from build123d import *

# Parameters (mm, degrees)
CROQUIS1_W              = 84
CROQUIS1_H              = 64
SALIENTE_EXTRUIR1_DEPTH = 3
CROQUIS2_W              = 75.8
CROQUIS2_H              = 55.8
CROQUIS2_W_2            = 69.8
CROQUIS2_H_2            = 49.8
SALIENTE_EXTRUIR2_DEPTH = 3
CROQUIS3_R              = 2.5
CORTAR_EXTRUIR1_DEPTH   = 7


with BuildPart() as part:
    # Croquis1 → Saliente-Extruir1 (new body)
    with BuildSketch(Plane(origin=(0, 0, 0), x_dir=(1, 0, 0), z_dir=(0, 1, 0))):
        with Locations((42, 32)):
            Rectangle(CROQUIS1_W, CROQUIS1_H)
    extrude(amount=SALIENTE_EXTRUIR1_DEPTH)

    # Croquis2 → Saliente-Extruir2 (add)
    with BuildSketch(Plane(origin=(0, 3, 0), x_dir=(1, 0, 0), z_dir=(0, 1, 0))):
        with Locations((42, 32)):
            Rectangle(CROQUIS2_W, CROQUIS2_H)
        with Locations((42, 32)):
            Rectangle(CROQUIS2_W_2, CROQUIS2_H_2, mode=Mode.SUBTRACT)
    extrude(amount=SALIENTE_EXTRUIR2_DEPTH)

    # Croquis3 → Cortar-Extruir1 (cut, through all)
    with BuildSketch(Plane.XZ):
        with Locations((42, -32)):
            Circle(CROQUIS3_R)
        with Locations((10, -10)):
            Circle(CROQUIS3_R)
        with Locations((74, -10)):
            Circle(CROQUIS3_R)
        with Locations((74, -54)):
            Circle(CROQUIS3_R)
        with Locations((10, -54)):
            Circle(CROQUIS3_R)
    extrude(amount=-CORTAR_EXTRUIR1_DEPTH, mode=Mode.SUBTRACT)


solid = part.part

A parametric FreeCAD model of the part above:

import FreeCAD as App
import Part
import Sketcher
Q = App.Units.Quantity


def add_polygon(sketch, points):
    """Adds a closed chain of lines whose ends are joined by coincident constraints."""
    first, n = sketch.GeometryCount, len(points)
    for a, b in zip(points, points[1:] + points[:1]):
        sketch.addGeometry(Part.LineSegment(App.Vector(*a, 0), App.Vector(*b, 0)), False)
    for i in range(n):
        sketch.addConstraint(Sketcher.Constraint("Coincident", first + i, 2, first + (i + 1) % n, 1))

doc = App.newDocument("Part")
body = doc.addObject("PartDesign::Body", "Body")

# Sketch on XZ plane
sketch1 = doc.addObject("Sketcher::SketchObject", "Sketch")
body.addObject(sketch1)
sketch1.AttachmentSupport = (doc.XZ_Plane, [""])
sketch1.MapMode = "FlatFace"
add_polygon(sketch1, [(0, -64), (0, 0), (84, 0), (84, -64)])  # lines 0-3
sketch1.addConstraint([
    Sketcher.Constraint("Vertical", 0),
    Sketcher.Constraint("Horizontal", 1),
    Sketcher.Constraint("Vertical", 2),
    Sketcher.Constraint("Horizontal", 3),
    Sketcher.Constraint("Coincident", 0, 2, -1, 1),
    Sketcher.Constraint("DistanceX", 1, 1, 1, 2, Q("84 mm")),
    Sketcher.Constraint("DistanceY", 0, 1, 0, 2, Q("64 mm")),
])
pad1 = doc.addObject("PartDesign::Pad", "Pad")
body.addObject(pad1)
pad1.Profile = sketch1
pad1.Length = 3
pad1.Reversed = True

# Sketch on XZ plane
sketch2 = doc.addObject("Sketcher::SketchObject", "Sketch001")
body.addObject(sketch2)
sketch2.AttachmentSupport = (doc.XZ_Plane, [""])
sketch2.MapMode = "FlatFace"
sketch2.AttachmentOffset = App.Placement(App.Vector(0, 0, -3), App.Rotation())
add_polygon(sketch2, [(4.1, -59.9), (4.1, -4.1), (79.9, -4.1), (79.9, -59.9)])  # lines 0-3
add_polygon(sketch2, [(76.9, -7.1), (7.1, -7.1), (7.1, -56.9), (76.9, -56.9)])  # lines 4-7
sketch2.addConstraint([
    Sketcher.Constraint("Vertical", 0),
    Sketcher.Constraint("Horizontal", 1),
    Sketcher.Constraint("Vertical", 2),
    Sketcher.Constraint("Horizontal", 3),
    Sketcher.Constraint("Horizontal", 4),
    Sketcher.Constraint("Vertical", 5),
    Sketcher.Constraint("Horizontal", 6),
    Sketcher.Constraint("Vertical", 7),
    Sketcher.Constraint("DistanceX", 1, 1, 1, 2, Q("75.8 mm")),
    Sketcher.Constraint("DistanceX", 4, 2, 4, 1, Q("69.8 mm")),
    Sketcher.Constraint("DistanceY", 0, 1, 0, 2, Q("55.8 mm")),
    Sketcher.Constraint("DistanceY", 5, 2, 5, 1, Q("49.8 mm")),
    Sketcher.Constraint("DistanceX", 0, 2, 4, 2, Q("3 mm")),
    Sketcher.Constraint("DistanceY", 4, 2, 0, 2, Q("3 mm")),
    Sketcher.Constraint("DistanceX", -1, 1, 0, 2, Q("4.1 mm")),
    Sketcher.Constraint("DistanceY", 0, 2, -1, 1, Q("4.1 mm")),
])
pad2 = doc.addObject("PartDesign::Pad", "Pad001")
body.addObject(pad2)
pad2.Profile = sketch2
pad2.Length = 3
pad2.Reversed = True

# Sketch on XZ plane
sketch3 = doc.addObject("Sketcher::SketchObject", "Sketch002")
body.addObject(sketch3)
sketch3.AttachmentSupport = (doc.XZ_Plane, [""])
sketch3.MapMode = "FlatFace"
sketch3.addGeometry([
    Part.Circle(App.Vector(42, -32, 0), App.Vector(0, 0, 1), 2.5),  # 0
    Part.Circle(App.Vector(10, -10, 0), App.Vector(0, 0, 1), 2.5),  # 1
    Part.Circle(App.Vector(74, -10, 0), App.Vector(0, 0, 1), 2.5),  # 2
    Part.Circle(App.Vector(74, -54, 0), App.Vector(0, 0, 1), 2.5),  # 3
    Part.Circle(App.Vector(10, -54, 0), App.Vector(0, 0, 1), 2.5),  # 4
], False)
sketch3.addConstraint([
    Sketcher.Constraint("Equal", 0, 1),
    Sketcher.Constraint("Equal", 1, 2),
    Sketcher.Constraint("Equal", 2, 3),
    Sketcher.Constraint("Equal", 3, 4),
    Sketcher.Constraint("Horizontal", 1, 3, 2, 3),
    Sketcher.Constraint("Horizontal", 3, 3, 4, 3),
    Sketcher.Constraint("Vertical", 2, 3, 3, 3),
    Sketcher.Constraint("Vertical", 1, 3, 4, 3),
    Sketcher.Constraint("Diameter", 0, Q("5 mm")),
    Sketcher.Constraint("DistanceX", -1, 1, 0, 3, Q("42 mm")),
    Sketcher.Constraint("DistanceY", 0, 3, -1, 1, Q("32 mm")),
    Sketcher.Constraint("DistanceX", -1, 1, 1, 3, Q("10 mm")),
    Sketcher.Constraint("DistanceY", 1, 3, -1, 1, Q("10 mm")),
    Sketcher.Constraint("DistanceX", -1, 1, 2, 3, Q("74 mm")),
    Sketcher.Constraint("DistanceY", 3, 3, -1, 1, Q("54 mm")),
])
pocket1 = doc.addObject("PartDesign::Pocket", "Pocket")
body.addObject(pocket1)
pocket1.Profile = sketch3
pocket1.Type = "ThroughAll"

doc.recompute()
